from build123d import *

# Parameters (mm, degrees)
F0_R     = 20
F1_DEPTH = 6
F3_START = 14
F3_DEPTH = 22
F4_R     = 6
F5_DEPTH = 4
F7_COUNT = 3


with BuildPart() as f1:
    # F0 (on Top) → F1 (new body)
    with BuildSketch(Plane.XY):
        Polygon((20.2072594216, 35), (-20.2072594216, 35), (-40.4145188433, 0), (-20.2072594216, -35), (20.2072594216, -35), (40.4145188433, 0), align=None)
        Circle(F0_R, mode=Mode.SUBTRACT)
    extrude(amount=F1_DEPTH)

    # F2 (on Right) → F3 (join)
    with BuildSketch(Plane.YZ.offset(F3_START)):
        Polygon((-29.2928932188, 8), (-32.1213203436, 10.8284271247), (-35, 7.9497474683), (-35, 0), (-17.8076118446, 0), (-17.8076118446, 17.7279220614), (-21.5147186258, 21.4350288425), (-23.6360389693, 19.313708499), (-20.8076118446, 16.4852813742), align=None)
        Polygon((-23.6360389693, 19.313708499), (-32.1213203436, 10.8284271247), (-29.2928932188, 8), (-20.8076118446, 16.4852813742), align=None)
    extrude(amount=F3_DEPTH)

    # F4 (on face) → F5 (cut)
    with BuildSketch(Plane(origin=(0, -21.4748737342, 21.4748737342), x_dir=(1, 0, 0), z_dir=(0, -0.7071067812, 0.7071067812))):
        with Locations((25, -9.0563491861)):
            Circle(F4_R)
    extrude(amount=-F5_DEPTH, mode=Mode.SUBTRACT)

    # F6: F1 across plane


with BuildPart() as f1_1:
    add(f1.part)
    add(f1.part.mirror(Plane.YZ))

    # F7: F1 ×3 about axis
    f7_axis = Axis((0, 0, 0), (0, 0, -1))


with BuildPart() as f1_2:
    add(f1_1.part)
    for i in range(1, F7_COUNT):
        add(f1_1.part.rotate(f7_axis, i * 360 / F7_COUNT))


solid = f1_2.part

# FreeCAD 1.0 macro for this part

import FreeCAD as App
import Part
import Sketcher
Q = App.Units.Quantity


def add_polygon(sketch, points):
    """Adds a closed chain of lines whose ends are joined by coincident constraints."""
    first, n = sketch.GeometryCount, len(points)
    for a, b in zip(points, points[1:] + points[:1]):
        sketch.addGeometry(Part.LineSegment(App.Vector(*a, 0), App.Vector(*b, 0)), False)
    for i in range(n):
        sketch.addConstraint(Sketcher.Constraint("Coincident", first + i, 2, first + (i + 1) % n, 1))

doc = App.newDocument("Part")
body = doc.addObject("PartDesign::Body", "Body")

# Sketch on XY plane
sketch1 = doc.addObject("Sketcher::SketchObject", "Sketch")
body.addObject(sketch1)
sketch1.AttachmentSupport = (doc.XY_Plane, [""])
sketch1.MapMode = "FlatFace"
add_polygon(sketch1, [(20, 35), (-20, 35), (-40, 0), (-20, -35), (20, -35), (40, 0)])  # lines 0-5
sketch1.addGeometry(Part.Circle(App.Vector(0, 0, 0), App.Vector(0, 0, 1), 20), False)  # 6
sketch1.addConstraint([
    Sketcher.Constraint("Horizontal", 0),
    Sketcher.Constraint("Horizontal", 3),
    Sketcher.Constraint("Coincident", 6, 3, -1, 1),
    Sketcher.Constraint("Symmetric", 0, 2, 3, 2, -1, 1),
    Sketcher.Constraint("Symmetric", 1, 2, 4, 2, -1, 1),
    Sketcher.Constraint("PointOnObject", 1, 2, -1),
    Sketcher.Constraint("Parallel", 2, 5),
    Sketcher.Constraint("Vertical", 0, 2, 2, 2),
    Sketcher.Constraint("Diameter", 6, 40.0),
    Sketcher.Constraint("Angle", 1, Q("-120 deg")),
    Sketcher.Constraint("DistanceY", -1, 1, 0, 2, 35.0),
    Sketcher.Constraint("DistanceX", 0, 2, 0, 1, 40.414519),
])
pad1 = doc.addObject("PartDesign::Pad", "Pad")
body.addObject(pad1)
pad1.Profile = sketch1
pad1.Length = 6

# Sketch on YZ plane
sketch2 = doc.addObject("Sketcher::SketchObject", "Sketch001")
body.addObject(sketch2)
sketch2.AttachmentSupport = (doc.YZ_Plane, [""])
sketch2.MapMode = "FlatFace"
sketch2.AttachmentOffset = App.Placement(App.Vector(0, 0, 14), App.Rotation())
add_polygon(sketch2, [(-35, 8), (-35, 0), (-18, 0), (-18, 18), (-22, 21)])  # lines 0-4
sketch2.addConstraint([
    Sketcher.Constraint("Vertical", 0),
    Sketcher.Constraint("Horizontal", 1),
    Sketcher.Constraint("Vertical", 2),
    Sketcher.Constraint("PointOnObject", 0, 2, -1),
    Sketcher.Constraint("Perpendicular", 3, 4),
    Sketcher.Constraint("Angle", 3, Q("135 deg")),
    Sketcher.Constraint("DistanceX", 0, 2, -1, 1, 35.0),
    Sketcher.Constraint("DistanceX", 1, 1, 1, 2, 17.192388),
    Sketcher.Constraint("Distance", 3, 5.242641),
    Sketcher.Constraint("DistanceY", 0, 2, 0, 1, 7.949747),
])
pad2 = doc.addObject("PartDesign::Pad", "Pad001")
body.addObject(pad2)
pad2.Profile = sketch2
pad2.Length = 22

# Sketch on an angled plane
sketch3 = doc.addObject("Sketcher::SketchObject", "Sketch002")
body.addObject(sketch3)
sketch3.Placement = App.Placement(App.Vector(0, -21.474874, 21.474874), App.Rotation(App.Vector(1, 0, 0), App.Vector(0, 0.707106781, 0.707106781), App.Vector(0, -0.707106781, 0.707106781), "ZXY"))
sketch3.addGeometry(Part.Circle(App.Vector(25, -9, 0), App.Vector(0, 0, 1), 6), False)
sketch3.addConstraint([
    Sketcher.Constraint("Diameter", 0, 12.0),
    Sketcher.Constraint("DistanceX", -1, 1, 0, 3, 25.0),
    Sketcher.Constraint("DistanceY", 0, 3, -1, 1, 9.056349),
])
pocket1 = doc.addObject("PartDesign::Pocket", "Pocket")
body.addObject(pocket1)
pocket1.Profile = sketch3
pocket1.Length = 4
body2 = doc.addObject("PartDesign::Body", "Body001")
doc.recompute()

body2.BaseFeature = body
doc.recompute()

mirroring = doc.addObject("Part::Mirroring", "Mirroring")
mirroring.Source = body
mirroring.Base = App.Vector(0, 0, 0)
mirroring.Normal = App.Vector(1, 0, 0)
body3 = doc.addObject("PartDesign::Body", "Body002")
body3.BaseFeature = mirroring
boolean = doc.addObject("PartDesign::Boolean", "Boolean")
body2.addObject(boolean)
boolean.Type = "Fuse"
boolean.addObjects([body3])
doc.recompute()
body4 = doc.addObject("PartDesign::Body", "Body003")
doc.recompute()

body4.BaseFeature = body2
doc.recompute()

body5 = doc.addObject("PartDesign::Body", "Body004")
body5.BaseFeature = body2
body5.Placement = App.Placement(App.Vector(0, 0, 0), App.Rotation(App.Vector(0, 0, -1), 120))
boolean2 = doc.addObject("PartDesign::Boolean", "Boolean001")
body4.addObject(boolean2)
boolean2.Type = "Fuse"
boolean2.addObjects([body5])
doc.recompute()

body2.Placement = App.Placement(App.Vector(0, 0, 0), App.Rotation(App.Vector(0, 0, -1), 240))
boolean3 = doc.addObject("PartDesign::Boolean", "Boolean002")
body4.addObject(boolean3)
boolean3.Type = "Fuse"
boolean3.addObjects([body2])
mirroring.Visibility = False

doc.recompute()
